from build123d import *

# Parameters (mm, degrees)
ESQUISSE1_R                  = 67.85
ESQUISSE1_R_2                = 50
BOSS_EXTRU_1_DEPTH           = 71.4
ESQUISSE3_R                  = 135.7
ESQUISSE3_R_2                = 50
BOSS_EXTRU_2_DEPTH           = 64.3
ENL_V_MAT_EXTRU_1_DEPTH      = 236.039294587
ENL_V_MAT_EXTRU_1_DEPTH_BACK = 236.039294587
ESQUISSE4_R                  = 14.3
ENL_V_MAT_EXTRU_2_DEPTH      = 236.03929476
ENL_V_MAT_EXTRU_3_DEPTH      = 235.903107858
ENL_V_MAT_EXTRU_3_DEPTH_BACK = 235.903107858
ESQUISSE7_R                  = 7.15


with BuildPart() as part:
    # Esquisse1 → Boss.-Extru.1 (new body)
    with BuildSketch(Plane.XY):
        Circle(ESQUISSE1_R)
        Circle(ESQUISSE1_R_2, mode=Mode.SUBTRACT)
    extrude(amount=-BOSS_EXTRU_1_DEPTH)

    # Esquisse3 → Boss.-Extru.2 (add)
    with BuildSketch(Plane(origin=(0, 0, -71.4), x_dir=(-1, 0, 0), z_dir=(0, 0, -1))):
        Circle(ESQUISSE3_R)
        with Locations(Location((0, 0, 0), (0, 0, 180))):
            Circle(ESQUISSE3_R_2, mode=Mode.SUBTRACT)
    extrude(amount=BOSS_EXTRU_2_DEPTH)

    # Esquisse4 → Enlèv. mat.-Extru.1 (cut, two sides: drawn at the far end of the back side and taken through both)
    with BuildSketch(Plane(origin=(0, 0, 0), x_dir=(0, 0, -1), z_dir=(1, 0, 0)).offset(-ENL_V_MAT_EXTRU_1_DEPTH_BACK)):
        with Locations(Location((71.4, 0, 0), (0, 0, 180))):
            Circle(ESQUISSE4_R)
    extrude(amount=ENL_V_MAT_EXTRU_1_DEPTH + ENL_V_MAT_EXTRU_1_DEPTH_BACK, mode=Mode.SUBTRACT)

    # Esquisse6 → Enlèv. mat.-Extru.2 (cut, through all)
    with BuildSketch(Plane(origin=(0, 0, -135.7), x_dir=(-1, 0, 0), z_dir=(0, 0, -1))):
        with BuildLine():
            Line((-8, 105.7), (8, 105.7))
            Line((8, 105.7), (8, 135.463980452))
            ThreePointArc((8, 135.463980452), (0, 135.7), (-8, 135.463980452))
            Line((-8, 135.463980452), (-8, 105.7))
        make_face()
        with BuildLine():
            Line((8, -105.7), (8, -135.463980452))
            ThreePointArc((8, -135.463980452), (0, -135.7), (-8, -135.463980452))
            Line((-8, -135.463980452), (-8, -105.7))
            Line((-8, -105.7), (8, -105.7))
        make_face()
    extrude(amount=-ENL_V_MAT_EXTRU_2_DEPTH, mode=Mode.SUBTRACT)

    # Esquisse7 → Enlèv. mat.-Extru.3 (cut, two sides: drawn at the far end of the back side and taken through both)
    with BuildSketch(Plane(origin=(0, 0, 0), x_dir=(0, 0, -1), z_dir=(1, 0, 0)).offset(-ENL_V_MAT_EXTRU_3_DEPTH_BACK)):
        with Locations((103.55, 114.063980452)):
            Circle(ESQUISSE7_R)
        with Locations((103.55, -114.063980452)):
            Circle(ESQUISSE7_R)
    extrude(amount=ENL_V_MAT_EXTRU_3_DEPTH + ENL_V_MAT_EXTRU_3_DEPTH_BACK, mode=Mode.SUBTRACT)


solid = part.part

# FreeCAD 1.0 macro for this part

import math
import FreeCAD as App
import Part
import Sketcher
Q = App.Units.Quantity

doc = App.newDocument("Part")
params = doc.addObject("Spreadsheet::Sheet", "Params")
for row, (alias, value) in enumerate([
    ("sketch1_diameter", "100 mm"),
    ("sketch1_diameter2", "135.7 mm"),
    ("pad1_length", "71.4 mm"),
    ("sketch2_diameter", "100 mm"),
    ("sketch2_diameter2", "271.4 mm"),
    ("pad2_length", "64.3 mm"),
    ("sketch3_diameter", "28.6 mm"),
    ("sketch4_radius", "135.7 mm"),
    ("sketch4_width", "16 mm"),
    ("sketch5_diameter", "14.3 mm"),
], start=1):
    params.set(f"A{row}", alias)
    params.set(f"B{row}", "=" + value)
    params.setAlias(f"B{row}", alias)

body = doc.addObject("PartDesign::Body", "Body")

sketch1 = body.newObject("Sketcher::SketchObject", "Sketch")
sketch1.AttachmentSupport = (doc.getObject("XY_Plane"), [""])
sketch1.MapMode = "FlatFace"
sketch1.addGeometry([
    Part.Circle(App.Vector(0, 0, 0), App.Vector(0, 0, 1), 68),
    Part.Circle(App.Vector(0, 0, 0), App.Vector(0, 0, 1), 50),
], False)
sketch1.addConstraint([
    Sketcher.Constraint("Coincident", 0, 3, -1, 1),
    Sketcher.Constraint("Coincident", 1, 3, -1, 1),
    Sketcher.Constraint("Diameter", 1, Q("100 mm")),
    Sketcher.Constraint("Diameter", 0, Q("135.7 mm")),
])
sketch1.setExpression("Constraints[2]", "Params.sketch1_diameter")
sketch1.setExpression("Constraints[3]", "Params.sketch1_diameter2")
pad1 = body.newObject("PartDesign::Pad", "Pad")
pad1.Profile = sketch1
pad1.setExpression("Length", "Params.pad1_length")
pad1.Reversed = True

sketch2 = body.newObject("Sketcher::SketchObject", "Sketch001")
sketch2.AttachmentSupport = (doc.getObject("XY_Plane"), [""])
sketch2.MapMode = "FlatFace"
sketch2.AttachmentOffset = App.Placement(App.Vector(0, 0, -71.4), App.Rotation())
sketch2.addGeometry([
    Part.Circle(App.Vector(0, 0, 0), App.Vector(0, 0, 1), 136),
    Part.Circle(App.Vector(0, 0, 0), App.Vector(0, 0, 1), 50),
], False)
sketch2.addConstraint([
    Sketcher.Constraint("Coincident", 0, 3, -1, 1),
    Sketcher.Constraint("Coincident", 1, 3, -1, 1),
    Sketcher.Constraint("Diameter", 1, Q("100 mm")),
    Sketcher.Constraint("Diameter", 0, Q("271.4 mm")),
])
sketch2.setExpression("Constraints[2]", "Params.sketch2_diameter")
sketch2.setExpression("Constraints[3]", "Params.sketch2_diameter2")
pad2 = body.newObject("PartDesign::Pad", "Pad001")
pad2.Profile = sketch2
pad2.setExpression("Length", "Params.pad2_length")
pad2.Reversed = True

sketch3 = body.newObject("Sketcher::SketchObject", "Sketch002")
sketch3.AttachmentSupport = (doc.getObject("YZ_Plane"), [""])
sketch3.MapMode = "FlatFace"
sketch3.addGeometry(Part.Circle(App.Vector(0, -71, 0), App.Vector(0, 0, 1), 14), False)
sketch3.addConstraint([
    Sketcher.Constraint("PointOnObject", 0, 3, -2),
    Sketcher.Constraint("Diameter", 0, Q("28.6 mm")),
    Sketcher.Constraint("DistanceY", 0, 3, -1, 1, Q("71.4 mm")),
])
sketch3.setExpression("Constraints[1]", "Params.sketch3_diameter")
pocket1 = body.newObject("PartDesign::Pocket", "Pocket")
pocket1.Profile = sketch3
pocket1.Type = "ThroughAll"
pocket1.Midplane = True

sketch4 = body.newObject("Sketcher::SketchObject", "Sketch003")
sketch4.AttachmentSupport = (doc.getObject("XY_Plane"), [""])
sketch4.MapMode = "FlatFace"
sketch4.AttachmentOffset = App.Placement(App.Vector(0, 0, -135.7), App.Rotation())
sketch4.addGeometry([
    Part.LineSegment(App.Vector(8, 106, 0), App.Vector(-8, 106, 0)),
    Part.LineSegment(App.Vector(-8, 106, 0), App.Vector(-8, 135, 0)),
    Part.ArcOfCircle(Part.Circle(App.Vector(0, 0, 0), App.Vector(0, 0, 1), 136), math.radians(86.62), math.radians(93.38)),
    Part.LineSegment(App.Vector(8, 135, 0), App.Vector(8, 106, 0)),
    Part.LineSegment(App.Vector(-8, -135, 0), App.Vector(-8, -106, 0)),
    Part.LineSegment(App.Vector(-8, -106, 0), App.Vector(8, -106, 0)),
    Part.LineSegment(App.Vector(8, -106, 0), App.Vector(8, -135, 0)),
    Part.ArcOfCircle(Part.Circle(App.Vector(0, 0, 0), App.Vector(0, 0, 1), 136), math.radians(-93.38), math.radians(-86.62)),
], False)
sketch4.addConstraint([
    Sketcher.Constraint("Coincident", 0, 2, 1, 1),
    Sketcher.Constraint("Coincident", 1, 2, 2, 2),
    Sketcher.Constraint("Coincident", 2, 1, 3, 1),
    Sketcher.Constraint("Coincident", 3, 2, 0, 1),
    Sketcher.Constraint("Coincident", 4, 2, 5, 1),
    Sketcher.Constraint("Coincident", 5, 2, 6, 1),
    Sketcher.Constraint("Coincident", 6, 2, 7, 2),
    Sketcher.Constraint("Coincident", 7, 1, 4, 1),
    Sketcher.Constraint("Horizontal", 0),
    Sketcher.Constraint("Vertical", 1),
    Sketcher.Constraint("Vertical", 3),
    Sketcher.Constraint("Vertical", 4),
    Sketcher.Constraint("Horizontal", 5),
    Sketcher.Constraint("Vertical", 6),
    Sketcher.Constraint("Coincident", 2, 3, -1, 1),
    Sketcher.Constraint("Coincident", 7, 3, -1, 1),
    Sketcher.Constraint("Equal", 2, 7),
    Sketcher.Constraint("Symmetric", 3, 2, 4, 2, -1, 1),
    Sketcher.Constraint("Horizontal", 1, 2, 2, 1),
    Sketcher.Constraint("Horizontal", 6, 2, 7, 1),
    Sketcher.Constraint("Radius", 2, Q("135.7 mm")),
    Sketcher.Constraint("DistanceX", 0, 2, 0, 1, Q("16 mm")),
    Sketcher.Constraint("DistanceY", -1, 1, 0, 2, Q("105.7 mm")),
])
sketch4.setExpression("Constraints[20]", "Params.sketch4_radius")
sketch4.setExpression("Constraints[21]", "Params.sketch4_width")
pocket2 = body.newObject("PartDesign::Pocket", "Pocket001")
pocket2.Profile = sketch4
pocket2.Type = "ThroughAll"
pocket2.Reversed = True

sketch5 = body.newObject("Sketcher::SketchObject", "Sketch004")
sketch5.AttachmentSupport = (doc.getObject("YZ_Plane"), [""])
sketch5.MapMode = "FlatFace"
sketch5.addGeometry([
    Part.Circle(App.Vector(114, -104, 0), App.Vector(0, 0, 1), 7),
    Part.Circle(App.Vector(-114, -104, 0), App.Vector(0, 0, 1), 7),
], False)
sketch5.addConstraint([
    Sketcher.Constraint("Equal", 0, 1),
    Sketcher.Constraint("Symmetric", 0, 3, 1, 3, -2),
    Sketcher.Constraint("Diameter", 0, Q("14.3 mm")),
    Sketcher.Constraint("DistanceY", 0, 3, -1, 1, Q("103.55 mm")),
    Sketcher.Constraint("DistanceX", -1, 1, 0, 3, Q("114.06398 mm")),
])
sketch5.setExpression("Constraints[2]", "Params.sketch5_diameter")
pocket3 = body.newObject("PartDesign::Pocket", "Pocket002")
pocket3.Profile = sketch5
pocket3.Type = "ThroughAll"
pocket3.Midplane = True

doc.recompute()
